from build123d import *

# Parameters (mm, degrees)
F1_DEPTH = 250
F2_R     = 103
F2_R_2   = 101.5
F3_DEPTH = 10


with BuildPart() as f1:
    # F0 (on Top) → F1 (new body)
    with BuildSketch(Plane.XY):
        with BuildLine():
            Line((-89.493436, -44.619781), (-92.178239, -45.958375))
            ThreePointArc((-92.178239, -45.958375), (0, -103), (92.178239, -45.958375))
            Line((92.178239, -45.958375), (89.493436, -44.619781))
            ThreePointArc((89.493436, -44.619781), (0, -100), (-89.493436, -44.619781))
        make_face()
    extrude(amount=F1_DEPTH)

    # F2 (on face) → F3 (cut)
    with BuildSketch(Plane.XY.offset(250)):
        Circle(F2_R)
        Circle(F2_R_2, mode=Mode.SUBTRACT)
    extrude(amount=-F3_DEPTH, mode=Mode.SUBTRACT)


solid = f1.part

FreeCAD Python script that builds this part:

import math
import FreeCAD as App
import Part
import Sketcher
Q = App.Units.Quantity

doc = App.newDocument("Part")
params = doc.addObject("Spreadsheet::Sheet", "Params")
for row, (alias, value) in enumerate([
    ("sketch1_radius", "103 mm"),
    ("sketch1_radius2", "99.999999 mm"),
    ("pad1_length", "250 mm"),
    ("sketch2_diameter", "206 mm"),
    ("sketch2_diameter2", "203 mm"),
    ("pocket1_length", "10 mm"),
], start=1):
    params.set(f"A{row}", alias)
    params.set(f"B{row}", "=" + value)
    params.setAlias(f"B{row}", alias)

body = doc.addObject("PartDesign::Body", "Body")

# Sketch on XY plane
sketch1 = body.newObject("Sketcher::SketchObject", "Sketch")
sketch1.AttachmentSupport = (doc.getObject("XY_Plane"), [""])
sketch1.MapMode = "FlatFace"
sketch1.addGeometry([
    Part.LineSegment(App.Vector(-89.5, -44.6, 0), App.Vector(-92.2, -46, 0)),
    Part.ArcOfCircle(Part.Circle(App.Vector(0, 0, 0), App.Vector(0, 0, 1), 103), math.radians(-153), math.radians(-27)),
    Part.LineSegment(App.Vector(92.2, -46, 0), App.Vector(89.5, -44.6, 0)),
    Part.ArcOfCircle(Part.Circle(App.Vector(0, 0, 0), App.Vector(0, 0, 1), 100), math.radians(-154), math.radians(-26)),
], False)
sketch1.addConstraint([
    Sketcher.Constraint("Coincident", 0, 2, 1, 1),
    Sketcher.Constraint("Coincident", 1, 2, 2, 1),
    Sketcher.Constraint("Coincident", 2, 2, 3, 2),
    Sketcher.Constraint("Coincident", 3, 1, 0, 1),
    Sketcher.Constraint("Coincident", 1, 3, -1, 1),
    Sketcher.Constraint("Coincident", 3, 3, -1, 1),
    Sketcher.Constraint("Horizontal", 0, 2, 1, 2),
    Sketcher.Constraint("Horizontal", 2, 2, 3, 1),
    Sketcher.Constraint("Radius", 1, Q("103 mm")),
    Sketcher.Constraint("Radius", 3, Q("99.999999 mm")),
    Sketcher.Constraint("Angle", 0, Q("-153.49999 deg")),
    Sketcher.Constraint("DistanceX", 0, 2, -1, 1, Q("92.178239 mm")),
])
sketch1.setExpression("Constraints[8]", "Params.sketch1_radius")
sketch1.setExpression("Constraints[9]", "Params.sketch1_radius2")
pad1 = body.newObject("PartDesign::Pad", "Pad")
pad1.Profile = sketch1
pad1.setExpression("Length", "Params.pad1_length")

# Sketch on XY plane
sketch2 = body.newObject("Sketcher::SketchObject", "Sketch001")
sketch2.AttachmentSupport = (doc.getObject("XY_Plane"), [""])
sketch2.MapMode = "FlatFace"
sketch2.AttachmentOffset = App.Placement(App.Vector(0, 0, 250), App.Rotation())
sketch2.addGeometry([
    Part.Circle(App.Vector(0, 0, 0), App.Vector(0, 0, 1), 103),
    Part.Circle(App.Vector(0, 0, 0), App.Vector(0, 0, 1), 102),
], False)
sketch2.addConstraint([
    Sketcher.Constraint("Coincident", 0, 3, -1, 1),
    Sketcher.Constraint("Coincident", 1, 3, -1, 1),
    Sketcher.Constraint("Diameter", 0, Q("206 mm")),
    Sketcher.Constraint("Diameter", 1, Q("203 mm")),
])
sketch2.setExpression("Constraints[2]", "Params.sketch2_diameter")
sketch2.setExpression("Constraints[3]", "Params.sketch2_diameter2")
pocket1 = body.newObject("PartDesign::Pocket", "Pocket")
pocket1.Profile = sketch2
pocket1.setExpression("Length", "Params.pocket1_length")

doc.recompute()
